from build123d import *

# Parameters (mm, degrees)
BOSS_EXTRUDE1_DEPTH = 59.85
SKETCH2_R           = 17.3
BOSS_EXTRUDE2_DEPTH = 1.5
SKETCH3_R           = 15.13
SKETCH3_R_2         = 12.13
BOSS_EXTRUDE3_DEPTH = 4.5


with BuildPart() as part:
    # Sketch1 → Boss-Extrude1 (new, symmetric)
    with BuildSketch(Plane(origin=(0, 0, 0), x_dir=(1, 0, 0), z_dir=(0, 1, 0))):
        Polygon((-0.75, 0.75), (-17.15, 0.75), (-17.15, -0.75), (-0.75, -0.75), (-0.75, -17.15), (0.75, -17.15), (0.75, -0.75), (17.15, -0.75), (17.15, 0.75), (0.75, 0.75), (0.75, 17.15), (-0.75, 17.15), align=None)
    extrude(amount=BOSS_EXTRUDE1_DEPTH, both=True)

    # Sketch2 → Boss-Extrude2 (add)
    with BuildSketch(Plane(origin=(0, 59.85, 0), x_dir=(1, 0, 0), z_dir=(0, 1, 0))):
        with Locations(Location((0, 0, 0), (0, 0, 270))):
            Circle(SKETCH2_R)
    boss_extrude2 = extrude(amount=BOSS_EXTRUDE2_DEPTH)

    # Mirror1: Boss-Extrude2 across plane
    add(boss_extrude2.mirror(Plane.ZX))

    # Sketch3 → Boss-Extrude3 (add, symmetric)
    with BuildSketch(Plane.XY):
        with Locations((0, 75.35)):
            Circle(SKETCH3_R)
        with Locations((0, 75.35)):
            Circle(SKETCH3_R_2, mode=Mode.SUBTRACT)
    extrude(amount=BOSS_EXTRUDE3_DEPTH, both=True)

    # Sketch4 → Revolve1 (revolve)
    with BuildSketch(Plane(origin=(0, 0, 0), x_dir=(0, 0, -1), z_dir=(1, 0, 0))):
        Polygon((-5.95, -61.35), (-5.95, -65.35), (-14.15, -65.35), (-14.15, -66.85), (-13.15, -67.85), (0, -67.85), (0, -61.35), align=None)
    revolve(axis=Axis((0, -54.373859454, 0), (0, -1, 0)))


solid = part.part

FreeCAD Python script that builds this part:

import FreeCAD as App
import Part
import Sketcher

V = App.Vector
Q = App.Units.Quantity

doc = App.newDocument("Part")
params = doc.addObject("Spreadsheet::Sheet", "Params")
for row, (alias, value) in enumerate([
    ("sketch1_width", "16.4 mm"),
    ("sketch1_width2", "1.5 mm"),
    ("pad1_length", "119.7 mm"),
    ("sketch2_diameter", "34.6 mm"),
    ("pad2_length", "1.5 mm"),
    ("sketch3_diameter", "30.26 mm"),
    ("sketch3_diameter2", "24.26 mm"),
    ("pad3_length", "9 mm"),
    ("sketch4_width", "4 mm"),
    ("sketch4_width2", "1.5 mm"),
    ("sketch4_width3", "6.5 mm"),
    ("sketch4_height", "8.2 mm"),
    ("sketch4_height2", "13.15 mm"),
    ("revolution_angle", "360 deg"),
], start=1):
    params.set(f"A{row}", alias)
    params.set(f"B{row}", "=" + value)
    params.setAlias(f"B{row}", alias)

body = doc.addObject("PartDesign::Body", "Body")

sketch1 = body.newObject("Sketcher::SketchObject", "Sketch")
sketch1.AttachmentSupport = (doc.getObject("XZ_Plane"), [""])
sketch1.MapMode = "FlatFace"
sketch1.addGeometry([
    Part.LineSegment(V(-0.8, -0.8, 0), V(-17.1, -0.8, 0)),
    Part.LineSegment(V(-17.1, -0.8, 0), V(-17.1, 0.8, 0)),
    Part.LineSegment(V(-17.1, 0.8, 0), V(-0.8, 0.8, 0)),
    Part.LineSegment(V(-0.8, 0.8, 0), V(-0.8, 17.1, 0)),
    Part.LineSegment(V(-0.8, 17.1, 0), V(0.8, 17.1, 0)),
    Part.LineSegment(V(0.8, 17.1, 0), V(0.8, 0.8, 0)),
    Part.LineSegment(V(0.8, 0.8, 0), V(17.1, 0.8, 0)),
    Part.LineSegment(V(17.1, 0.8, 0), V(17.1, -0.8, 0)),
    Part.LineSegment(V(17.1, -0.8, 0), V(0.8, -0.8, 0)),
    Part.LineSegment(V(0.8, -0.8, 0), V(0.8, -17.1, 0)),
    Part.LineSegment(V(0.8, -17.1, 0), V(-0.8, -17.1, 0)),
    Part.LineSegment(V(-0.8, -17.1, 0), V(-0.8, -0.8, 0)),
], False)
sketch1.addConstraint([
    Sketcher.Constraint("Coincident", 0, 2, 1, 1),
    Sketcher.Constraint("Coincident", 1, 2, 2, 1),
    Sketcher.Constraint("Coincident", 2, 2, 3, 1),
    Sketcher.Constraint("Coincident", 3, 2, 4, 1),
    Sketcher.Constraint("Coincident", 4, 2, 5, 1),
    Sketcher.Constraint("Coincident", 5, 2, 6, 1),
    Sketcher.Constraint("Coincident", 6, 2, 7, 1),
    Sketcher.Constraint("Coincident", 7, 2, 8, 1),
    Sketcher.Constraint("Coincident", 8, 2, 9, 1),
    Sketcher.Constraint("Coincident", 9, 2, 10, 1),
    Sketcher.Constraint("Coincident", 10, 2, 11, 1),
    Sketcher.Constraint("Coincident", 11, 2, 0, 1),
    Sketcher.Constraint("Horizontal", 0),
    Sketcher.Constraint("Vertical", 1),
    Sketcher.Constraint("Horizontal", 2),
    Sketcher.Constraint("Vertical", 3),
    Sketcher.Constraint("Horizontal", 4),
    Sketcher.Constraint("Vertical", 5),
    Sketcher.Constraint("Horizontal", 6),
    Sketcher.Constraint("Vertical", 7),
    Sketcher.Constraint("Horizontal", 8),
    Sketcher.Constraint("Vertical", 9),
    Sketcher.Constraint("Horizontal", 10),
    Sketcher.Constraint("Vertical", 11),
    Sketcher.Constraint("Symmetric", 0, 2, 6, 2, -1, 1),
    Sketcher.Constraint("Symmetric", 2, 2, 8, 2, -1, 1),
    Sketcher.Constraint("Symmetric", 4, 2, 10, 2, -1, 1),
    Sketcher.Constraint("Symmetric", 2, 2, 5, 2, -2),
    Sketcher.Constraint("Equal", 10, 1),
    Sketcher.Constraint("Equal", 8, 3),
    Sketcher.Constraint("DistanceX", 0, 2, 0, 1, 16.4),
    Sketcher.Constraint("DistanceX", 4, 1, 4, 2, 1.5),
])
sketch1.setExpression("Constraints[30]", "Params.sketch1_width")
sketch1.setExpression("Constraints[31]", "Params.sketch1_width2")
pad1 = body.newObject("PartDesign::Pad", "Pad")
pad1.Profile = sketch1
pad1.setExpression("Length", "Params.pad1_length")
pad1.Midplane = True

sketch2 = body.newObject("Sketcher::SketchObject", "Sketch001")
sketch2.AttachmentSupport = (doc.getObject("XZ_Plane"), [""])
sketch2.MapMode = "FlatFace"
sketch2.AttachmentOffset = App.Placement(V(0, 0, -59.85), App.Rotation())
sketch2.addGeometry(Part.Circle(V(0, 0, 0), V(0, 0, 1), 17), False)
sketch2.addConstraint([
    Sketcher.Constraint("Coincident", 0, 3, -1, 1),
    Sketcher.Constraint("Diameter", 0, 34.6),
])
sketch2.setExpression("Constraints[1]", "Params.sketch2_diameter")
pad2 = body.newObject("PartDesign::Pad", "Pad001")
pad2.Profile = sketch2
pad2.setExpression("Length", "Params.pad2_length")
pad2.Reversed = True
doc.recompute()

mirrored = body.newObject("PartDesign::Mirrored", "Mirrored")
mirrored.Originals = [pad2]
mirrored.MirrorPlane = (doc.getObject("XZ_Plane"), [""])
body.Tip = mirrored

sketch3 = body.newObject("Sketcher::SketchObject", "Sketch002")
sketch3.AttachmentSupport = (doc.getObject("XY_Plane"), [""])
sketch3.MapMode = "FlatFace"
sketch3.addGeometry([
    Part.Circle(V(0, 75, 0), V(0, 0, 1), 15),
    Part.Circle(V(0, 75, 0), V(0, 0, 1), 12),
], False)
sketch3.addConstraint([
    Sketcher.Constraint("Coincident", 1, 3, 0, 3),
    Sketcher.Constraint("PointOnObject", 0, 3, -2),
    Sketcher.Constraint("Diameter", 0, 30.26),
    Sketcher.Constraint("Diameter", 1, 24.26),
    Sketcher.Constraint("DistanceY", -1, 1, 0, 3, 75.35),
])
sketch3.setExpression("Constraints[2]", "Params.sketch3_diameter")
sketch3.setExpression("Constraints[3]", "Params.sketch3_diameter2")
pad3 = body.newObject("PartDesign::Pad", "Pad002")
pad3.Profile = sketch3
pad3.setExpression("Length", "Params.pad3_length")
pad3.Midplane = True

sketch4 = body.newObject("Sketcher::SketchObject", "Sketch003")
sketch4.AttachmentSupport = (doc.getObject("YZ_Plane"), [""])
sketch4.MapMode = "FlatFace"
sketch4.addGeometry([
    Part.LineSegment(V(-61.4, 6, 0), V(-65.3, 6, 0)),
    Part.LineSegment(V(-65.3, 6, 0), V(-65.3, 14.2, 0)),
    Part.LineSegment(V(-65.3, 14.2, 0), V(-66.8, 14.2, 0)),
    Part.LineSegment(V(-66.8, 14.2, 0), V(-67.8, 13.2, 0)),
    Part.LineSegment(V(-67.8, 13.2, 0), V(-67.8, 0, 0)),
    Part.LineSegment(V(-67.8, 0, 0), V(-61.4, 0, 0)),
    Part.LineSegment(V(-61.4, 0, 0), V(-61.4, 6, 0)),
], False)
sketch4.addConstraint([
    Sketcher.Constraint("Coincident", 0, 2, 1, 1),
    Sketcher.Constraint("Coincident", 1, 2, 2, 1),
    Sketcher.Constraint("Coincident", 2, 2, 3, 1),
    Sketcher.Constraint("Coincident", 3, 2, 4, 1),
    Sketcher.Constraint("Coincident", 4, 2, 5, 1),
    Sketcher.Constraint("Coincident", 5, 2, 6, 1),
    Sketcher.Constraint("Coincident", 6, 2, 0, 1),
    Sketcher.Constraint("Horizontal", 0),
    Sketcher.Constraint("Vertical", 1),
    Sketcher.Constraint("Horizontal", 2),
    Sketcher.Constraint("Vertical", 4),
    Sketcher.Constraint("Horizontal", 5),
    Sketcher.Constraint("Vertical", 6),
    Sketcher.Constraint("PointOnObject", 4, 2, -1),
    Sketcher.Constraint("DistanceX", 0, 2, 0, 1, 4.0),
    Sketcher.Constraint("Angle", 3, Q("-135 deg")),
    Sketcher.Constraint("DistanceX", 2, 2, 2, 1, 1.5),
    Sketcher.Constraint("DistanceX", 5, 1, 5, 2, 6.5),
    Sketcher.Constraint("DistanceY", 1, 1, 1, 2, 8.2),
    Sketcher.Constraint("DistanceY", 4, 2, 4, 1, 13.15),
    Sketcher.Constraint("DistanceX", 0, 2, -1, 1, 65.35),
])
sketch4.setExpression("Constraints[14]", "Params.sketch4_width")
sketch4.setExpression("Constraints[16]", "Params.sketch4_width2")
sketch4.setExpression("Constraints[17]", "Params.sketch4_width3")
sketch4.setExpression("Constraints[18]", "Params.sketch4_height")
sketch4.setExpression("Constraints[19]", "Params.sketch4_height2")
revolution = body.newObject("PartDesign::Revolution", "Revolution")
revolution.Profile = sketch4
revolution.ReferenceAxis = (sketch4, ["H_Axis"])
revolution.setExpression("Angle", "Params.revolution_angle")

doc.recompute()
